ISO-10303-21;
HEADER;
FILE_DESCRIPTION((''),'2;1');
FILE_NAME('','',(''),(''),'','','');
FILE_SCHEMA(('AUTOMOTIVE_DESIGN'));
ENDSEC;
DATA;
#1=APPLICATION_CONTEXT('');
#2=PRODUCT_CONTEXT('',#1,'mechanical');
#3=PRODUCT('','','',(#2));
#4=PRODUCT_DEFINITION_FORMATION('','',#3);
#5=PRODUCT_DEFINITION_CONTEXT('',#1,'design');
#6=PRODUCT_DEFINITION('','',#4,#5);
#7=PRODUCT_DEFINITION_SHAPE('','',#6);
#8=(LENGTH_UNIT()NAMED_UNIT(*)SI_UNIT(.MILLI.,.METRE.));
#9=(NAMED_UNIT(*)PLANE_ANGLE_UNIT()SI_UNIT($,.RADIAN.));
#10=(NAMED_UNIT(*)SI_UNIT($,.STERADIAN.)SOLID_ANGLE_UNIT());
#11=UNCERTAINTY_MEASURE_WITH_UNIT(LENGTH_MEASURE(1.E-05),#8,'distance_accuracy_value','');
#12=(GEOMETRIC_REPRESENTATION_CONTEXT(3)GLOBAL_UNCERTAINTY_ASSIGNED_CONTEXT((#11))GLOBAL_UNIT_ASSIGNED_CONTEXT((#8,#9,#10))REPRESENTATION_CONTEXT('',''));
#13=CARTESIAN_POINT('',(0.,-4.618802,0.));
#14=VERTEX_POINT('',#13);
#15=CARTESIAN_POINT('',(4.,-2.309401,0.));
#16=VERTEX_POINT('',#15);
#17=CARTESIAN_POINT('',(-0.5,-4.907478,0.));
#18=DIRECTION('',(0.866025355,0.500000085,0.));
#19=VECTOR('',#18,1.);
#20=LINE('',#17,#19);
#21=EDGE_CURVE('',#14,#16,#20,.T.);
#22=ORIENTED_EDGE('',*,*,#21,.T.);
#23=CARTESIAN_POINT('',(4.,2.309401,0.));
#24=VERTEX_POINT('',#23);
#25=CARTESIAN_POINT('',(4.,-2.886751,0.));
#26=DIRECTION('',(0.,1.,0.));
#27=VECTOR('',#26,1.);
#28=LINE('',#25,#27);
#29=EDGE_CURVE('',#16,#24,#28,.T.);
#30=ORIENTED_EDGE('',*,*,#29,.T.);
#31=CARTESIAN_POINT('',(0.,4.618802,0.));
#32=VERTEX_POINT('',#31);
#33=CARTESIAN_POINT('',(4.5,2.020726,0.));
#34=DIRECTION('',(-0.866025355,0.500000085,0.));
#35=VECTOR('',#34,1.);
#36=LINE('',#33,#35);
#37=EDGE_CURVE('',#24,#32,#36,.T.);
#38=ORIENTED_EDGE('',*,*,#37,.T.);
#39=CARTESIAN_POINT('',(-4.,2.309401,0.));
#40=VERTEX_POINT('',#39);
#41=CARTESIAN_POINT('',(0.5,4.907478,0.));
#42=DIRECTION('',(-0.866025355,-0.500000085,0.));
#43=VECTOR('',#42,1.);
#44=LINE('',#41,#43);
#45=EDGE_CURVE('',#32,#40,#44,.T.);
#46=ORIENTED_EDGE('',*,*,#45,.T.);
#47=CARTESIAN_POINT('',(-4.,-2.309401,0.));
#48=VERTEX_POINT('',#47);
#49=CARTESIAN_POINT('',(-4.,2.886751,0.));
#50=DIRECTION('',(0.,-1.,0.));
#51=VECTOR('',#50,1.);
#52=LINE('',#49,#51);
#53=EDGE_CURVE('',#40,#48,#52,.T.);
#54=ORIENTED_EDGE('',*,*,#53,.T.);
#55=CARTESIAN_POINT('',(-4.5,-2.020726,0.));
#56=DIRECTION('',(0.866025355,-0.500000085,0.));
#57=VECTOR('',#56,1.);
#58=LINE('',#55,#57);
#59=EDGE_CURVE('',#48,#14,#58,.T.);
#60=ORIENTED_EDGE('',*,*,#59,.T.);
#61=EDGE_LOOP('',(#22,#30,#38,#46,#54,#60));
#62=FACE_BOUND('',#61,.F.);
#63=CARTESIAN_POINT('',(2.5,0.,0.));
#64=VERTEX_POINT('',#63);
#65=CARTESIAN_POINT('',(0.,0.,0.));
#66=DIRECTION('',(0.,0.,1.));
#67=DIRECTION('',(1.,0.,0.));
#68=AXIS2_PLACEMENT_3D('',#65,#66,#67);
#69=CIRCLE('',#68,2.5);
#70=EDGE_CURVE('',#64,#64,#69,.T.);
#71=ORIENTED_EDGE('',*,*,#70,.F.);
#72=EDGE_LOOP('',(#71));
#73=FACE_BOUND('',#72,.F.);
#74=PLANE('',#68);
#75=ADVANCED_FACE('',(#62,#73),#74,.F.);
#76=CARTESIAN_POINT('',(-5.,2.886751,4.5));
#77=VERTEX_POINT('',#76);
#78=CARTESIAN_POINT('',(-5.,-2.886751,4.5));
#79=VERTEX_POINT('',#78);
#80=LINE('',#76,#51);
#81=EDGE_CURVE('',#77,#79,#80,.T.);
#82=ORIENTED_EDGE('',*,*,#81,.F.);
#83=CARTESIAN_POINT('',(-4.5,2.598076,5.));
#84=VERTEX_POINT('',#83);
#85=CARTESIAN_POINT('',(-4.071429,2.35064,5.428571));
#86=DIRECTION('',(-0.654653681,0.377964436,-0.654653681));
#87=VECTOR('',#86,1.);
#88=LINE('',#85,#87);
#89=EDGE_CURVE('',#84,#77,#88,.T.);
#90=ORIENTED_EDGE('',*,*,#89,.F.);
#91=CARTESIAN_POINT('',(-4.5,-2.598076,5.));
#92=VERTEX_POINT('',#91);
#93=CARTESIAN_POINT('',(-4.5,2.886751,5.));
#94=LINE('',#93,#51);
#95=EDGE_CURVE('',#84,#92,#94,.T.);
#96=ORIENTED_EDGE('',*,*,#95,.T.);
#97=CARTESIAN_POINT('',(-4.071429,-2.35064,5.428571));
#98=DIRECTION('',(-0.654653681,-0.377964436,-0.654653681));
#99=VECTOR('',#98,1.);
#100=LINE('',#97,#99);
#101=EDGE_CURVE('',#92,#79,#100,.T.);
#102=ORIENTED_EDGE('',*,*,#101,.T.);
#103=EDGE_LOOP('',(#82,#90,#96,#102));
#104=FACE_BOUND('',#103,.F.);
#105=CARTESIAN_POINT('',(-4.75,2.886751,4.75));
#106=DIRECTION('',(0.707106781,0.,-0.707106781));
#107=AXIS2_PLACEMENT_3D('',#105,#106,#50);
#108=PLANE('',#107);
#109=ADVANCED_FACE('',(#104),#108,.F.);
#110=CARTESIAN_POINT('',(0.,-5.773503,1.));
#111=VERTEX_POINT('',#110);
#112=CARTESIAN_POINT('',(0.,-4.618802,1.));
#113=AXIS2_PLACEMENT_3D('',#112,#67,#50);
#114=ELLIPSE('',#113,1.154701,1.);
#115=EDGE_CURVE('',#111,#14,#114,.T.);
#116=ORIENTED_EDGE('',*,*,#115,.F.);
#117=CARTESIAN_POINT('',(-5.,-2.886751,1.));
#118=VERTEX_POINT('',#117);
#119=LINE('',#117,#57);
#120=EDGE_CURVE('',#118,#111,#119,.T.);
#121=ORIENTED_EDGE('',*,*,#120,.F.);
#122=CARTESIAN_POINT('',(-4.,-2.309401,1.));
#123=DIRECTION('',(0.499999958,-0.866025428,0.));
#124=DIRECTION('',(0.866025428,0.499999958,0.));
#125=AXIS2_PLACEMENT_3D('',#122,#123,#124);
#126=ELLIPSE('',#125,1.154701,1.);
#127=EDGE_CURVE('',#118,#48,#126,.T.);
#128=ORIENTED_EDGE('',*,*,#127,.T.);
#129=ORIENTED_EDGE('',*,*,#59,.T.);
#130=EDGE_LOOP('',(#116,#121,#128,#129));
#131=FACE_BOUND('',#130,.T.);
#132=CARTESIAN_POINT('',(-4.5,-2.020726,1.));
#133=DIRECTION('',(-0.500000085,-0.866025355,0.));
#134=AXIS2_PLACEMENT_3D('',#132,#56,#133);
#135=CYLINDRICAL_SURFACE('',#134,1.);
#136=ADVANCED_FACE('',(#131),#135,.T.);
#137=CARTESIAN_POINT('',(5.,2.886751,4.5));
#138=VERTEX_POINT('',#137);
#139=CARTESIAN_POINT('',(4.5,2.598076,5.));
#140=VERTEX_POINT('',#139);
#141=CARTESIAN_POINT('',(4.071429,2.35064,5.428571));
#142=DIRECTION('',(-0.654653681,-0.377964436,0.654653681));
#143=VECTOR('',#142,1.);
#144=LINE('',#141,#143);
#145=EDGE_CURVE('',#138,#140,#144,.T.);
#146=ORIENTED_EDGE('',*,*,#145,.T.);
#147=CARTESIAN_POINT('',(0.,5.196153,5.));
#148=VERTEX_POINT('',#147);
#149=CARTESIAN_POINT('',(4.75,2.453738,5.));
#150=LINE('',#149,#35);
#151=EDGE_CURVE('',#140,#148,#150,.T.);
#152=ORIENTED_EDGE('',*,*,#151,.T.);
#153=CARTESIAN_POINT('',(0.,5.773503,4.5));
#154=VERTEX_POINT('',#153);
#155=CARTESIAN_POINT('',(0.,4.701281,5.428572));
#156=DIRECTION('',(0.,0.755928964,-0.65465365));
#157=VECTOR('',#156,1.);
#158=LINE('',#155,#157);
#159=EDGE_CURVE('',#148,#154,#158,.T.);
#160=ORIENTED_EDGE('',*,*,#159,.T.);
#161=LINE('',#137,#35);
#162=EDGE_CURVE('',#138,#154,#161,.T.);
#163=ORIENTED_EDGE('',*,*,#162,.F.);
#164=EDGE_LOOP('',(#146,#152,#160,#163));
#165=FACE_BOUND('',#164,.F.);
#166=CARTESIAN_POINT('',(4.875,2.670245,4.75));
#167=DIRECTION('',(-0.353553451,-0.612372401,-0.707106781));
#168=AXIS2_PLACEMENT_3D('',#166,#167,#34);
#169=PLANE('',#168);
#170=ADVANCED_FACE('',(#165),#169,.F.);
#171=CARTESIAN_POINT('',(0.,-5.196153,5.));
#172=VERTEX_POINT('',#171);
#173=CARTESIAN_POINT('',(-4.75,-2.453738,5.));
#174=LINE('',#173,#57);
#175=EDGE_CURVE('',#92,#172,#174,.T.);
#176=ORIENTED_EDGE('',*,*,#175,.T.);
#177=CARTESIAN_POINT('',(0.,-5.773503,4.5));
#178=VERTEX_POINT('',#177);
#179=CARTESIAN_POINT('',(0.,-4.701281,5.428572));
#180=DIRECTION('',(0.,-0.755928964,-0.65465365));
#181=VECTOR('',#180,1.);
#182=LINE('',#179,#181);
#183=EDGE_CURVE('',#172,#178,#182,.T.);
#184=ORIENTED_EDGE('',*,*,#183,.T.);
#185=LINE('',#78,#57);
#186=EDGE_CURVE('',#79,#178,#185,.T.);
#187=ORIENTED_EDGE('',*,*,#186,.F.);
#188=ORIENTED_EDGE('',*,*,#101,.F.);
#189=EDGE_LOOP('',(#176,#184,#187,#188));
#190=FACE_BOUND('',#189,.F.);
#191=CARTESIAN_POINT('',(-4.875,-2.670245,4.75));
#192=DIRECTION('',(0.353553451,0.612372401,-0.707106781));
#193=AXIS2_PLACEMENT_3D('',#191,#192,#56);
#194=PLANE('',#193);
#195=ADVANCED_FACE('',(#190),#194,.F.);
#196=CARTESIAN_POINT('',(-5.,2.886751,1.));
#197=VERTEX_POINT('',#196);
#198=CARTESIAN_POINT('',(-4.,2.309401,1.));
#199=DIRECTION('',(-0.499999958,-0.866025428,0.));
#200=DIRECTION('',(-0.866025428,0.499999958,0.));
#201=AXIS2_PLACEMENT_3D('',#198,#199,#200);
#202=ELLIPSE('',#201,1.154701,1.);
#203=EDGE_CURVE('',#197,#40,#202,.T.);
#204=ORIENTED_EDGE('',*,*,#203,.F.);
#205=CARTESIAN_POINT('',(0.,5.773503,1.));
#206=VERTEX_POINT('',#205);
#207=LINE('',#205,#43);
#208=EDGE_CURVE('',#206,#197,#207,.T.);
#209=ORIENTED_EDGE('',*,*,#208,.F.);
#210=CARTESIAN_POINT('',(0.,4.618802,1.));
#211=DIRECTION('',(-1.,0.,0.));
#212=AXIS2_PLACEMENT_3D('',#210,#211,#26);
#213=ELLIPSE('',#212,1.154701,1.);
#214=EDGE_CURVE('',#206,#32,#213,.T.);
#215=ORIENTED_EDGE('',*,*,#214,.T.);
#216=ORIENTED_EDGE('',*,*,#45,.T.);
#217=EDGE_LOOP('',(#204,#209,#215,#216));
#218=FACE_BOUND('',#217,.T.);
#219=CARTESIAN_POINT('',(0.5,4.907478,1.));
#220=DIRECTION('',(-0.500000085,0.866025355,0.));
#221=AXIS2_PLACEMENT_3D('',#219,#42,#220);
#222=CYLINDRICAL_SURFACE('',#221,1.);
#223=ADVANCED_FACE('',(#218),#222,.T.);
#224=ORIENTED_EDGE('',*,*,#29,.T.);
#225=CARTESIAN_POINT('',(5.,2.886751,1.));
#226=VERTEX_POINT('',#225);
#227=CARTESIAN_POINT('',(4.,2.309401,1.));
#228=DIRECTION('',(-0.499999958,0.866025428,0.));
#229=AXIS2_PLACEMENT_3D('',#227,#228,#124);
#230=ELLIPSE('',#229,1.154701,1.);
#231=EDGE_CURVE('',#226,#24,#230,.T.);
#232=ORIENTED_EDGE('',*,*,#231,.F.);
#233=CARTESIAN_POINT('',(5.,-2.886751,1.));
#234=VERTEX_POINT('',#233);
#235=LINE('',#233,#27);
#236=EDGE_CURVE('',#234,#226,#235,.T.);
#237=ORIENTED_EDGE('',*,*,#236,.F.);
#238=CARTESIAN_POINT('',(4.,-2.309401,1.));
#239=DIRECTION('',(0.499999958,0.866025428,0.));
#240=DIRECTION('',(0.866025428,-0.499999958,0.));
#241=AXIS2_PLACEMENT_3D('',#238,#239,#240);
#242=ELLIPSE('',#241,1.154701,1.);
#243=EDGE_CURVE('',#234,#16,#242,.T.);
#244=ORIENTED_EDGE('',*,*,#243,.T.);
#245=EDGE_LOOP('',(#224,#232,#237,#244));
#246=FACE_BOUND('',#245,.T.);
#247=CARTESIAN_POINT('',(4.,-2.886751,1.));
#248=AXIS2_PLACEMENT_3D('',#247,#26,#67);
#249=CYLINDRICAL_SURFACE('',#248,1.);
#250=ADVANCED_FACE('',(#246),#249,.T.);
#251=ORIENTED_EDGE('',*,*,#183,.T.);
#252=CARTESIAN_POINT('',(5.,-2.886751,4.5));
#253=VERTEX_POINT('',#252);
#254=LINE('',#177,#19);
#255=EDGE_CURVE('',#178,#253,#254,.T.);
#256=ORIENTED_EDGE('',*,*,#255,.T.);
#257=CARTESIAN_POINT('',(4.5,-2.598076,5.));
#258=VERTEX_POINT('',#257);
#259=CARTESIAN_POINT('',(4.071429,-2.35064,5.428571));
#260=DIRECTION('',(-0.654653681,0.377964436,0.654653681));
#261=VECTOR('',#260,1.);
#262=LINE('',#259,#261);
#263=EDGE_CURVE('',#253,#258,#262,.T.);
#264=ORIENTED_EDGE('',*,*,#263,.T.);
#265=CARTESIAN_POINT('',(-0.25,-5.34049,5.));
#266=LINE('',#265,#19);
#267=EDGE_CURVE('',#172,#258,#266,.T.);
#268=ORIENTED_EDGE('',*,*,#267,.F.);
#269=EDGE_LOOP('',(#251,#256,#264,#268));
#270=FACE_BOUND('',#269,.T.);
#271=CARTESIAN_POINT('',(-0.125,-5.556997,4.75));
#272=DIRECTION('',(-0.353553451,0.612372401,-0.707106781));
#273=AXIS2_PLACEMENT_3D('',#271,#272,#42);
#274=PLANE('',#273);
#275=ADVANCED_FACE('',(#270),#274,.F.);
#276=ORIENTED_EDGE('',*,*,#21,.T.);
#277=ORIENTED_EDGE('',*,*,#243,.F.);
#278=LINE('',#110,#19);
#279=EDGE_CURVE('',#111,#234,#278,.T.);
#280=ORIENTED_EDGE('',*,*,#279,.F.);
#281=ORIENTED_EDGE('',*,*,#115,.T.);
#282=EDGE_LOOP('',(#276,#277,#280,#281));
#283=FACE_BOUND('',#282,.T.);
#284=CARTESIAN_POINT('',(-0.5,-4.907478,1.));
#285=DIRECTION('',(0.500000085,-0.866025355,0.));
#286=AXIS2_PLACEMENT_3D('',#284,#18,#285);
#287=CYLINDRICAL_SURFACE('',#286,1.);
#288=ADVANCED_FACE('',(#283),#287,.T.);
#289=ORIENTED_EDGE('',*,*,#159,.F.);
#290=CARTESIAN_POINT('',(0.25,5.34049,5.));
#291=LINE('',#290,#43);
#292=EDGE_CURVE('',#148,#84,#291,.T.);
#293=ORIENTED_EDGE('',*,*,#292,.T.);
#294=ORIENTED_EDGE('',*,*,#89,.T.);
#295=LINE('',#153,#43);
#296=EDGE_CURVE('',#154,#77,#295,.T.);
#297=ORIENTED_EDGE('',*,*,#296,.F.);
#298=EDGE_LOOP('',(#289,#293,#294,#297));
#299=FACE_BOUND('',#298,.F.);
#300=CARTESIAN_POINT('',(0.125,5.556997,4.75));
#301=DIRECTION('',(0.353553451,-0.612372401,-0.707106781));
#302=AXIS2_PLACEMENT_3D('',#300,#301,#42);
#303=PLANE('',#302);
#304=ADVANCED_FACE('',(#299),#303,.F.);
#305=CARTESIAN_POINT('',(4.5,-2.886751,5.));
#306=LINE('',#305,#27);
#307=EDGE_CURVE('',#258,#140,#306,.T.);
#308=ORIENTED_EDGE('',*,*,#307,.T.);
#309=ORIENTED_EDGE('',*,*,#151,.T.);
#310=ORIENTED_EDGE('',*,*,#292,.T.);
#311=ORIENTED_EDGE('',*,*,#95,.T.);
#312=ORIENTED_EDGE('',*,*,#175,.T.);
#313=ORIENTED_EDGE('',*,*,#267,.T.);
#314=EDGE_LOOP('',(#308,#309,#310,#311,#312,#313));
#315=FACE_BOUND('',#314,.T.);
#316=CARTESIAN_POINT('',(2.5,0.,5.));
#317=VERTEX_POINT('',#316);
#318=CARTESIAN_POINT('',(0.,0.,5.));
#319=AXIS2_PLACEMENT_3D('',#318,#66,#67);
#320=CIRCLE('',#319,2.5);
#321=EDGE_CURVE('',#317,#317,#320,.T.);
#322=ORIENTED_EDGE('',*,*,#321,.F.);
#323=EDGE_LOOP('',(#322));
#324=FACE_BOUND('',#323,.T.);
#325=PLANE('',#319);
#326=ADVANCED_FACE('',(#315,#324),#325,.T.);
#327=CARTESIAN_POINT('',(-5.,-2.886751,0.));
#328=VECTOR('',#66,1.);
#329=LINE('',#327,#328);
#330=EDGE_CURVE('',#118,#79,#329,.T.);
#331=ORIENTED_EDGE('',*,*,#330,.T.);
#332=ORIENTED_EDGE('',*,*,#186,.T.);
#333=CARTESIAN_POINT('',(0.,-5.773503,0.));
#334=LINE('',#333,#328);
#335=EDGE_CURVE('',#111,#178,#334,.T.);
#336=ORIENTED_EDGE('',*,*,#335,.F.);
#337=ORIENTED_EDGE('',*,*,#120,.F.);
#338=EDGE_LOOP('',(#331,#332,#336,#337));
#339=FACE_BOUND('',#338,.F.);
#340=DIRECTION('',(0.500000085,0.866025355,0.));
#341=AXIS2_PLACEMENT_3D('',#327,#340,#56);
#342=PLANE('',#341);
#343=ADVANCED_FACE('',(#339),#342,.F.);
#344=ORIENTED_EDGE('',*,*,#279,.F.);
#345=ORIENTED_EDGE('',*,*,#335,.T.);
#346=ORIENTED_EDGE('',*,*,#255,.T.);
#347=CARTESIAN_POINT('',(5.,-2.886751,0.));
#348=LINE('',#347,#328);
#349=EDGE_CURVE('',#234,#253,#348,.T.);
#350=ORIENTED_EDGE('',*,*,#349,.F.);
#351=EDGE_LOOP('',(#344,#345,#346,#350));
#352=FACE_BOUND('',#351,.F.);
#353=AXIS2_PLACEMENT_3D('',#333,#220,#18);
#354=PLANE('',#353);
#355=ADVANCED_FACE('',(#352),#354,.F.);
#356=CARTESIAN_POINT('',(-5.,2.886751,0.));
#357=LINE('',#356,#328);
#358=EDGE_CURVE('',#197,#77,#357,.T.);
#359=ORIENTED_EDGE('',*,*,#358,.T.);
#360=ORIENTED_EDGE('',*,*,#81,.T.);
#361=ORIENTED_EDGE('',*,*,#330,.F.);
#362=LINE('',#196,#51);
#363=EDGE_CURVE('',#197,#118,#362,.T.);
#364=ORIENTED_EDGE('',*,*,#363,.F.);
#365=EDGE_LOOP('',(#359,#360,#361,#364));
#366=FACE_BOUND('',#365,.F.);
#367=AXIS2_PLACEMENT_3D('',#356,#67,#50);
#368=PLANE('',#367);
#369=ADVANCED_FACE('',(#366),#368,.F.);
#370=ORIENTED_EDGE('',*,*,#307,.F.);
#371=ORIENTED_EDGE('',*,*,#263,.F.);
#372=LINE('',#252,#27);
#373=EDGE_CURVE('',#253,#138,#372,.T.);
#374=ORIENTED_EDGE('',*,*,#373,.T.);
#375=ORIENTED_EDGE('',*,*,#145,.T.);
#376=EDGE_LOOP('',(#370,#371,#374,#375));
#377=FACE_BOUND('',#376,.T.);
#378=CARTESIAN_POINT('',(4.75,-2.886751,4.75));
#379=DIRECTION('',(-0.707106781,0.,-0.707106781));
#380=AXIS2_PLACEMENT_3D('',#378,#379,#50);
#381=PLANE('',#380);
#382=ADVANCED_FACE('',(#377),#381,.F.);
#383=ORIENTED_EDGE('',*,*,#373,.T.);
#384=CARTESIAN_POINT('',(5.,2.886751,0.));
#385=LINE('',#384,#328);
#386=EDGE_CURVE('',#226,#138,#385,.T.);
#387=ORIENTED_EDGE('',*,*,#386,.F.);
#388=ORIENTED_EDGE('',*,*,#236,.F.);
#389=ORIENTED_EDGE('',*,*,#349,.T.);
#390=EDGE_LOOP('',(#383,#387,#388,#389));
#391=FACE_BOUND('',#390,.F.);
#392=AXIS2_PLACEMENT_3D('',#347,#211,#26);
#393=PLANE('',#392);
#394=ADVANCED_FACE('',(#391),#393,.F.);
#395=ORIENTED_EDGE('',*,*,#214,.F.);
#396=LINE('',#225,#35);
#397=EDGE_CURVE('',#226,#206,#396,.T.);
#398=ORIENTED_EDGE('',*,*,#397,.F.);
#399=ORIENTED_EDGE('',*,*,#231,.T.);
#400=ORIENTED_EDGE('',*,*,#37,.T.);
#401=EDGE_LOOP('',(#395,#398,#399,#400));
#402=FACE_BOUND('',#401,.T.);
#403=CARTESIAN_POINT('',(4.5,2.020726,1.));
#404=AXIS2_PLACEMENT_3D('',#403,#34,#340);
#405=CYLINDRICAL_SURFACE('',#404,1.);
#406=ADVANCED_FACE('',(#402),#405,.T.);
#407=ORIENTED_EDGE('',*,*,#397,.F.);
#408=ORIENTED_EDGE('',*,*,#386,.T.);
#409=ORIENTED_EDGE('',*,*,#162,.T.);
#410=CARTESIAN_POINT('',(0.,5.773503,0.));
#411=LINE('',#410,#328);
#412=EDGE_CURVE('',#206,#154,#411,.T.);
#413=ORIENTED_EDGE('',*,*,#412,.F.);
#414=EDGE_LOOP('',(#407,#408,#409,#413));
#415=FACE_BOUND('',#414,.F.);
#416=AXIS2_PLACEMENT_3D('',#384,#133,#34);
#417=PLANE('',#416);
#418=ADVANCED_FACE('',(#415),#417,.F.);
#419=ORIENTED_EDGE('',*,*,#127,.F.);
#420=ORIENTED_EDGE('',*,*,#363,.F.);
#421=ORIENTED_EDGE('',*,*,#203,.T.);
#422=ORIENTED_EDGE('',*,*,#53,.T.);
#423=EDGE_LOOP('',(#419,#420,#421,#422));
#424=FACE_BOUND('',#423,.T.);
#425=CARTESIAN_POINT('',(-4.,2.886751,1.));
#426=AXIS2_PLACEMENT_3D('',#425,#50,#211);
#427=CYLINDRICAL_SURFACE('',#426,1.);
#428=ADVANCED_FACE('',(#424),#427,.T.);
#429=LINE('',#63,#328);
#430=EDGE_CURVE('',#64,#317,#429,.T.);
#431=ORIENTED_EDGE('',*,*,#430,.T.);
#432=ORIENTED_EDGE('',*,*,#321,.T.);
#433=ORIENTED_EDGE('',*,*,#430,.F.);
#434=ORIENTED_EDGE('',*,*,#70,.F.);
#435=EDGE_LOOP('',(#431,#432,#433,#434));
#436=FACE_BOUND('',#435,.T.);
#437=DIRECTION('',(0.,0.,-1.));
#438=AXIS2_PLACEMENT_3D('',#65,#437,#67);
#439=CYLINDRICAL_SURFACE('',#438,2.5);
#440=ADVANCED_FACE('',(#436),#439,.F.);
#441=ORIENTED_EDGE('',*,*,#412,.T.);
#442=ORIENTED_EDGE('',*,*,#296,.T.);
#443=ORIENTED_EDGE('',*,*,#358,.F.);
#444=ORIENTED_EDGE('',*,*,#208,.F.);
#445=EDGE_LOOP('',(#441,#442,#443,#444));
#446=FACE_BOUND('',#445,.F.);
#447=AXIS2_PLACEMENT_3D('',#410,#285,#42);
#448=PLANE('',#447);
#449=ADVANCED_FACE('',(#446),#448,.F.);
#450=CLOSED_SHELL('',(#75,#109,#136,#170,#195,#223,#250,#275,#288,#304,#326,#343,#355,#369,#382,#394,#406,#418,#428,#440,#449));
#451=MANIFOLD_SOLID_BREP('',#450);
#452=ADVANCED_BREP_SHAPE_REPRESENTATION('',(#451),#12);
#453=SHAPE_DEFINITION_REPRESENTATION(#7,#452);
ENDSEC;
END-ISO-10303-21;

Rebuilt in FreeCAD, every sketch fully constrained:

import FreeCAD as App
import Part
import Sketcher

V = App.Vector
Q = App.Units.Quantity


def edges_at(feature, points):
    """Names of the edges that pass closest to the given points."""
    edges = feature.Shape.Edges
    near = lambda p: min(range(len(edges)), key=lambda i: edges[i].distToShape(Part.Vertex(*p))[0])
    return sorted({f"Edge{near(p) + 1}" for p in points})


def add_polygon(sketch, points):
    """Adds a closed chain of lines whose ends are joined by coincident constraints."""
    first, n = sketch.GeometryCount, len(points)
    for a, b in zip(points, points[1:] + points[:1]):
        sketch.addGeometry(Part.LineSegment(App.Vector(*a, 0), App.Vector(*b, 0)), False)
    for i in range(n):
        sketch.addConstraint(Sketcher.Constraint("Coincident", first + i, 2, first + (i + 1) % n, 1))

doc = App.newDocument("Part")
body = doc.addObject("PartDesign::Body", "Body")

# Sketch on XY plane
sketch1 = body.newObject("Sketcher::SketchObject", "Sketch")
sketch1.AttachmentSupport = (doc.getObject("XY_Plane"), [""])
sketch1.MapMode = "FlatFace"
add_polygon(sketch1, [(5, -2.886751), (5, 2.886751), (0, 5.773503), (-5, 2.886751), (-5, -2.886751), (0, -5.773503)])  # lines 0-5
sketch1.addGeometry(Part.Circle(V(0, 0, 0), V(0, 0, 1), 2.5), False)  # 6
sketch1.addConstraint([
    Sketcher.Constraint("Vertical", 0),
    Sketcher.Constraint("Vertical", 3),
    Sketcher.Constraint("Coincident", 6, 3, -1, 1),
    Sketcher.Constraint("Symmetric", 0, 2, 3, 2, -1, 1),
    Sketcher.Constraint("Symmetric", 1, 2, 4, 2, -1, 1),
    Sketcher.Constraint("PointOnObject", 1, 2, -2),
    Sketcher.Constraint("Parallel", 2, 5),
    Sketcher.Constraint("Horizontal", 0, 2, 2, 2),
    Sketcher.Constraint("Diameter", 6, 5.0),
    Sketcher.Constraint("Angle", 1, Q("149.999994 deg")),
    Sketcher.Constraint("DistanceX", -1, 1, 0, 2, 5.0),
    Sketcher.Constraint("DistanceY", 0, 1, 0, 2, 5.773502),
])
pad1 = body.newObject("PartDesign::Pad", "Pad")
pad1.Profile = sketch1
pad1.Length = 5
doc.recompute()

fillet = body.newObject("PartDesign::Fillet", "Fillet")
fillet.Base = (pad1, edges_at(pad1, [
    (-2.5, -4.33, 0),
    (2.5, -4.33, 0),
    (5, 0, 0),
    (2.5, 4.33, 0),
    (-2.5, 4.33, 0),
    (-5, 0, 0),
]))
fillet.Radius = 1
doc.recompute()

chamfer = body.newObject("PartDesign::Chamfer", "Chamfer")
chamfer.Base = (fillet, edges_at(fillet, [
    (-2.5, -4.33, 5),
    (2.5, -4.33, 5),
    (5, 0, 5),
    (2.5, 4.33, 5),
    (-2.5, 4.33, 5),
    (-5, 0, 5),
]))
chamfer.Size = 0.5

doc.recompute()
